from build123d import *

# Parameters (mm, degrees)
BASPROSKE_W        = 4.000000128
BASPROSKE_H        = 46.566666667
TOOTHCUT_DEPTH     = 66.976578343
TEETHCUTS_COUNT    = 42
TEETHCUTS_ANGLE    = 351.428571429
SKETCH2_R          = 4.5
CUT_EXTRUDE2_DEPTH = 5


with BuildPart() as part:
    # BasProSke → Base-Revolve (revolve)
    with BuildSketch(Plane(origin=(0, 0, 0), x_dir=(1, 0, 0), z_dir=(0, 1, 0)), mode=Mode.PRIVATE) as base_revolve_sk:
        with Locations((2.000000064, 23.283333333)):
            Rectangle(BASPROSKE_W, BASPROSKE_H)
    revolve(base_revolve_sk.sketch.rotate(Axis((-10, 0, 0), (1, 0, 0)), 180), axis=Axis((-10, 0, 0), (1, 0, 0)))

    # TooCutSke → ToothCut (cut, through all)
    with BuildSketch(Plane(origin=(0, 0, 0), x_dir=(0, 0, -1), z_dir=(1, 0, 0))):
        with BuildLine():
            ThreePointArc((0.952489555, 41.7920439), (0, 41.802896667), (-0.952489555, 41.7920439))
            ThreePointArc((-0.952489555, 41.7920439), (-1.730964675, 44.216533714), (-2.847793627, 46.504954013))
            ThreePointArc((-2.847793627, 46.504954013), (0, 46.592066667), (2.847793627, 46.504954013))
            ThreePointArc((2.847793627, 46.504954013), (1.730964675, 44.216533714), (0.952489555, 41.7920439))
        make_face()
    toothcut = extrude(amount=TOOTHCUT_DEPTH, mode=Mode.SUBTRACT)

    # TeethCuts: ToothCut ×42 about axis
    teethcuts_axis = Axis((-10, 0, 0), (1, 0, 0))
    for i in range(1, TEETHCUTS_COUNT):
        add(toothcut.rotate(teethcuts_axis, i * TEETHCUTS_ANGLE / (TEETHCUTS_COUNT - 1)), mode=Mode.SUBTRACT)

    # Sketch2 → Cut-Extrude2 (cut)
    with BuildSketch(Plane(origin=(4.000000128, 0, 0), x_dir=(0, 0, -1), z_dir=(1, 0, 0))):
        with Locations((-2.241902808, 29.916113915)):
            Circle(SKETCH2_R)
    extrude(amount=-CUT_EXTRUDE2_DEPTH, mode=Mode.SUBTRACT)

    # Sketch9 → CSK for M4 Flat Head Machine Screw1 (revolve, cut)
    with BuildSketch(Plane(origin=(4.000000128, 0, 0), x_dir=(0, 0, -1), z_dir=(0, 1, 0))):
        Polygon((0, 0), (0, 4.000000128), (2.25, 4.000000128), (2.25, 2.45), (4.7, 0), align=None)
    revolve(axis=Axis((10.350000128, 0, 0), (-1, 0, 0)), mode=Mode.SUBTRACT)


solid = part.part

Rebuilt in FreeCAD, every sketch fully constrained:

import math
import FreeCAD as App
import Part
import Sketcher

V = App.Vector
Q = App.Units.Quantity


def add_polygon(sketch, points):
    """Adds a closed chain of lines whose ends are joined by coincident constraints."""
    first, n = sketch.GeometryCount, len(points)
    for a, b in zip(points, points[1:] + points[:1]):
        sketch.addGeometry(Part.LineSegment(App.Vector(*a, 0), App.Vector(*b, 0)), False)
    for i in range(n):
        sketch.addConstraint(Sketcher.Constraint("Coincident", first + i, 2, first + (i + 1) % n, 1))

doc = App.newDocument("Part")
body = doc.addObject("PartDesign::Body", "Body")

sketch1 = doc.addObject("Sketcher::SketchObject", "Sketch")
body.addObject(sketch1)
sketch1.AttachmentSupport = (doc.XZ_Plane, [""])
sketch1.MapMode = "FlatFace"
add_polygon(sketch1, [(0, -46.6), (0, 0), (4, 0), (4, -46.6)])
sketch1.addConstraint([
    Sketcher.Constraint("Vertical", 0),
    Sketcher.Constraint("Horizontal", 1),
    Sketcher.Constraint("Vertical", 2),
    Sketcher.Constraint("Horizontal", 3),
    Sketcher.Constraint("Coincident", 0, 2, -1, 1),
    Sketcher.Constraint("DistanceX", 1, 1, 1, 2, Q("4 mm")),
    Sketcher.Constraint("DistanceY", 0, 1, 0, 2, Q("46.566667 mm")),
])
revolution = doc.addObject("PartDesign::Revolution", "Revolution")
body.addObject(revolution)
revolution.Profile = sketch1
revolution.ReferenceAxis = (sketch1, ["H_Axis"])
revolution.Angle = 360

sketch2 = doc.addObject("Sketcher::SketchObject", "Sketch001")
body.addObject(sketch2)
sketch2.AttachmentSupport = (doc.YZ_Plane, [""])
sketch2.MapMode = "FlatFace"
sketch2.addGeometry([
    Part.ArcOfCircle(Part.Circle(V(0, 0, 0), V(0, 0, 1), 41.8), math.radians(-1.31), math.radians(1.31)),
    Part.ArcOfCircle(Part.Circle(V(37.6, -18.2, 0), V(0, 0, 1), 17.8), math.radians(59.88), math.radians(76.31)),
    Part.ArcOfCircle(Part.Circle(V(0, 0, 0), V(0, 0, 1), 46.6), math.radians(-3.5), math.radians(3.5)),
    Part.ArcOfCircle(Part.Circle(V(37.6, 18.2, 0), V(0, 0, 1), 17.8), math.radians(-76.31), math.radians(-59.88)),
], False)
sketch2.addConstraint([
    Sketcher.Constraint("Coincident", 0, 1, 1, 2),
    Sketcher.Constraint("Coincident", 1, 1, 2, 1),
    Sketcher.Constraint("Coincident", 2, 2, 3, 2),
    Sketcher.Constraint("Coincident", 3, 1, 0, 2),
    Sketcher.Constraint("Coincident", 0, 3, -1, 1),
    Sketcher.Constraint("Coincident", 2, 3, -1, 1),
    Sketcher.Constraint("Equal", 1, 3),
    Sketcher.Constraint("Symmetric", 1, 3, 3, 3, -1),
    Sketcher.Constraint("Radius", 1, Q("17.78 mm")),
    Sketcher.Constraint("Radius", 0, Q("41.802894 mm")),
    Sketcher.Constraint("Radius", 2, Q("46.592067 mm")),
    Sketcher.Constraint("DistanceY", 0, 1, -1, 1, Q("0.95249 mm")),
    Sketcher.Constraint("DistanceX", 0, 3, 1, 3, Q("37.58262 mm")),
])
pocket1 = doc.addObject("PartDesign::Pocket", "Pocket")
body.addObject(pocket1)
pocket1.Profile = sketch2
pocket1.Type = "ThroughAll"
pocket1.Reversed = True
doc.recompute()

polarpattern = doc.addObject("PartDesign::PolarPattern", "PolarPattern")
body.addObject(polarpattern)
polarpattern.Originals = [pocket1]
polarpattern.Axis = (doc.X_Axis, [""])
polarpattern.Angle = 360
polarpattern.Occurrences = 42
body.Tip = polarpattern

sketch3 = doc.addObject("Sketcher::SketchObject", "Sketch002")
body.addObject(sketch3)
sketch3.AttachmentSupport = (doc.YZ_Plane, [""])
sketch3.MapMode = "FlatFace"
sketch3.AttachmentOffset = App.Placement(V(0, 0, 4), App.Rotation())
sketch3.addGeometry(Part.Circle(V(29.9, 2.2, 0), V(0, 0, 1), 4.5), False)
sketch3.addConstraint([
    Sketcher.Constraint("Diameter", 0, Q("9 mm")),
    Sketcher.Constraint("DistanceX", -1, 1, 0, 3, Q("29.916114 mm")),
    Sketcher.Constraint("DistanceY", -1, 1, 0, 3, Q("2.241903 mm")),
])
pocket2 = doc.addObject("PartDesign::Pocket", "Pocket001")
body.addObject(pocket2)
pocket2.Profile = sketch3
pocket2.Length = 5

sketch4 = doc.addObject("Sketcher::SketchObject", "Sketch003")
body.addObject(sketch4)
sketch4.AttachmentSupport = (doc.XZ_Plane, [""])
sketch4.MapMode = "FlatFace"
add_polygon(sketch4, [(0, 0), (4, 0), (4, -4.7), (1.6, -2.2), (0, -2.2)])
sketch4.addConstraint([
    Sketcher.Constraint("Horizontal", 0),
    Sketcher.Constraint("Vertical", 1),
    Sketcher.Constraint("Horizontal", 3),
    Sketcher.Constraint("Vertical", 4),
    Sketcher.Constraint("Coincident", 4, 2, -1, 1),
    Sketcher.Constraint("DistanceX", 0, 1, 0, 2, Q("4 mm")),
    Sketcher.Constraint("Angle", 2, Q("135 deg")),
    Sketcher.Constraint("DistanceY", 1, 2, 1, 1, Q("4.7 mm")),
    Sketcher.Constraint("DistanceX", 3, 2, 3, 1, Q("1.55 mm")),
])
groove = doc.addObject("PartDesign::Groove", "Groove")
body.addObject(groove)
groove.Profile = sketch4
groove.ReferenceAxis = (sketch4, ["H_Axis"])
groove.Angle = 360

doc.recompute()
